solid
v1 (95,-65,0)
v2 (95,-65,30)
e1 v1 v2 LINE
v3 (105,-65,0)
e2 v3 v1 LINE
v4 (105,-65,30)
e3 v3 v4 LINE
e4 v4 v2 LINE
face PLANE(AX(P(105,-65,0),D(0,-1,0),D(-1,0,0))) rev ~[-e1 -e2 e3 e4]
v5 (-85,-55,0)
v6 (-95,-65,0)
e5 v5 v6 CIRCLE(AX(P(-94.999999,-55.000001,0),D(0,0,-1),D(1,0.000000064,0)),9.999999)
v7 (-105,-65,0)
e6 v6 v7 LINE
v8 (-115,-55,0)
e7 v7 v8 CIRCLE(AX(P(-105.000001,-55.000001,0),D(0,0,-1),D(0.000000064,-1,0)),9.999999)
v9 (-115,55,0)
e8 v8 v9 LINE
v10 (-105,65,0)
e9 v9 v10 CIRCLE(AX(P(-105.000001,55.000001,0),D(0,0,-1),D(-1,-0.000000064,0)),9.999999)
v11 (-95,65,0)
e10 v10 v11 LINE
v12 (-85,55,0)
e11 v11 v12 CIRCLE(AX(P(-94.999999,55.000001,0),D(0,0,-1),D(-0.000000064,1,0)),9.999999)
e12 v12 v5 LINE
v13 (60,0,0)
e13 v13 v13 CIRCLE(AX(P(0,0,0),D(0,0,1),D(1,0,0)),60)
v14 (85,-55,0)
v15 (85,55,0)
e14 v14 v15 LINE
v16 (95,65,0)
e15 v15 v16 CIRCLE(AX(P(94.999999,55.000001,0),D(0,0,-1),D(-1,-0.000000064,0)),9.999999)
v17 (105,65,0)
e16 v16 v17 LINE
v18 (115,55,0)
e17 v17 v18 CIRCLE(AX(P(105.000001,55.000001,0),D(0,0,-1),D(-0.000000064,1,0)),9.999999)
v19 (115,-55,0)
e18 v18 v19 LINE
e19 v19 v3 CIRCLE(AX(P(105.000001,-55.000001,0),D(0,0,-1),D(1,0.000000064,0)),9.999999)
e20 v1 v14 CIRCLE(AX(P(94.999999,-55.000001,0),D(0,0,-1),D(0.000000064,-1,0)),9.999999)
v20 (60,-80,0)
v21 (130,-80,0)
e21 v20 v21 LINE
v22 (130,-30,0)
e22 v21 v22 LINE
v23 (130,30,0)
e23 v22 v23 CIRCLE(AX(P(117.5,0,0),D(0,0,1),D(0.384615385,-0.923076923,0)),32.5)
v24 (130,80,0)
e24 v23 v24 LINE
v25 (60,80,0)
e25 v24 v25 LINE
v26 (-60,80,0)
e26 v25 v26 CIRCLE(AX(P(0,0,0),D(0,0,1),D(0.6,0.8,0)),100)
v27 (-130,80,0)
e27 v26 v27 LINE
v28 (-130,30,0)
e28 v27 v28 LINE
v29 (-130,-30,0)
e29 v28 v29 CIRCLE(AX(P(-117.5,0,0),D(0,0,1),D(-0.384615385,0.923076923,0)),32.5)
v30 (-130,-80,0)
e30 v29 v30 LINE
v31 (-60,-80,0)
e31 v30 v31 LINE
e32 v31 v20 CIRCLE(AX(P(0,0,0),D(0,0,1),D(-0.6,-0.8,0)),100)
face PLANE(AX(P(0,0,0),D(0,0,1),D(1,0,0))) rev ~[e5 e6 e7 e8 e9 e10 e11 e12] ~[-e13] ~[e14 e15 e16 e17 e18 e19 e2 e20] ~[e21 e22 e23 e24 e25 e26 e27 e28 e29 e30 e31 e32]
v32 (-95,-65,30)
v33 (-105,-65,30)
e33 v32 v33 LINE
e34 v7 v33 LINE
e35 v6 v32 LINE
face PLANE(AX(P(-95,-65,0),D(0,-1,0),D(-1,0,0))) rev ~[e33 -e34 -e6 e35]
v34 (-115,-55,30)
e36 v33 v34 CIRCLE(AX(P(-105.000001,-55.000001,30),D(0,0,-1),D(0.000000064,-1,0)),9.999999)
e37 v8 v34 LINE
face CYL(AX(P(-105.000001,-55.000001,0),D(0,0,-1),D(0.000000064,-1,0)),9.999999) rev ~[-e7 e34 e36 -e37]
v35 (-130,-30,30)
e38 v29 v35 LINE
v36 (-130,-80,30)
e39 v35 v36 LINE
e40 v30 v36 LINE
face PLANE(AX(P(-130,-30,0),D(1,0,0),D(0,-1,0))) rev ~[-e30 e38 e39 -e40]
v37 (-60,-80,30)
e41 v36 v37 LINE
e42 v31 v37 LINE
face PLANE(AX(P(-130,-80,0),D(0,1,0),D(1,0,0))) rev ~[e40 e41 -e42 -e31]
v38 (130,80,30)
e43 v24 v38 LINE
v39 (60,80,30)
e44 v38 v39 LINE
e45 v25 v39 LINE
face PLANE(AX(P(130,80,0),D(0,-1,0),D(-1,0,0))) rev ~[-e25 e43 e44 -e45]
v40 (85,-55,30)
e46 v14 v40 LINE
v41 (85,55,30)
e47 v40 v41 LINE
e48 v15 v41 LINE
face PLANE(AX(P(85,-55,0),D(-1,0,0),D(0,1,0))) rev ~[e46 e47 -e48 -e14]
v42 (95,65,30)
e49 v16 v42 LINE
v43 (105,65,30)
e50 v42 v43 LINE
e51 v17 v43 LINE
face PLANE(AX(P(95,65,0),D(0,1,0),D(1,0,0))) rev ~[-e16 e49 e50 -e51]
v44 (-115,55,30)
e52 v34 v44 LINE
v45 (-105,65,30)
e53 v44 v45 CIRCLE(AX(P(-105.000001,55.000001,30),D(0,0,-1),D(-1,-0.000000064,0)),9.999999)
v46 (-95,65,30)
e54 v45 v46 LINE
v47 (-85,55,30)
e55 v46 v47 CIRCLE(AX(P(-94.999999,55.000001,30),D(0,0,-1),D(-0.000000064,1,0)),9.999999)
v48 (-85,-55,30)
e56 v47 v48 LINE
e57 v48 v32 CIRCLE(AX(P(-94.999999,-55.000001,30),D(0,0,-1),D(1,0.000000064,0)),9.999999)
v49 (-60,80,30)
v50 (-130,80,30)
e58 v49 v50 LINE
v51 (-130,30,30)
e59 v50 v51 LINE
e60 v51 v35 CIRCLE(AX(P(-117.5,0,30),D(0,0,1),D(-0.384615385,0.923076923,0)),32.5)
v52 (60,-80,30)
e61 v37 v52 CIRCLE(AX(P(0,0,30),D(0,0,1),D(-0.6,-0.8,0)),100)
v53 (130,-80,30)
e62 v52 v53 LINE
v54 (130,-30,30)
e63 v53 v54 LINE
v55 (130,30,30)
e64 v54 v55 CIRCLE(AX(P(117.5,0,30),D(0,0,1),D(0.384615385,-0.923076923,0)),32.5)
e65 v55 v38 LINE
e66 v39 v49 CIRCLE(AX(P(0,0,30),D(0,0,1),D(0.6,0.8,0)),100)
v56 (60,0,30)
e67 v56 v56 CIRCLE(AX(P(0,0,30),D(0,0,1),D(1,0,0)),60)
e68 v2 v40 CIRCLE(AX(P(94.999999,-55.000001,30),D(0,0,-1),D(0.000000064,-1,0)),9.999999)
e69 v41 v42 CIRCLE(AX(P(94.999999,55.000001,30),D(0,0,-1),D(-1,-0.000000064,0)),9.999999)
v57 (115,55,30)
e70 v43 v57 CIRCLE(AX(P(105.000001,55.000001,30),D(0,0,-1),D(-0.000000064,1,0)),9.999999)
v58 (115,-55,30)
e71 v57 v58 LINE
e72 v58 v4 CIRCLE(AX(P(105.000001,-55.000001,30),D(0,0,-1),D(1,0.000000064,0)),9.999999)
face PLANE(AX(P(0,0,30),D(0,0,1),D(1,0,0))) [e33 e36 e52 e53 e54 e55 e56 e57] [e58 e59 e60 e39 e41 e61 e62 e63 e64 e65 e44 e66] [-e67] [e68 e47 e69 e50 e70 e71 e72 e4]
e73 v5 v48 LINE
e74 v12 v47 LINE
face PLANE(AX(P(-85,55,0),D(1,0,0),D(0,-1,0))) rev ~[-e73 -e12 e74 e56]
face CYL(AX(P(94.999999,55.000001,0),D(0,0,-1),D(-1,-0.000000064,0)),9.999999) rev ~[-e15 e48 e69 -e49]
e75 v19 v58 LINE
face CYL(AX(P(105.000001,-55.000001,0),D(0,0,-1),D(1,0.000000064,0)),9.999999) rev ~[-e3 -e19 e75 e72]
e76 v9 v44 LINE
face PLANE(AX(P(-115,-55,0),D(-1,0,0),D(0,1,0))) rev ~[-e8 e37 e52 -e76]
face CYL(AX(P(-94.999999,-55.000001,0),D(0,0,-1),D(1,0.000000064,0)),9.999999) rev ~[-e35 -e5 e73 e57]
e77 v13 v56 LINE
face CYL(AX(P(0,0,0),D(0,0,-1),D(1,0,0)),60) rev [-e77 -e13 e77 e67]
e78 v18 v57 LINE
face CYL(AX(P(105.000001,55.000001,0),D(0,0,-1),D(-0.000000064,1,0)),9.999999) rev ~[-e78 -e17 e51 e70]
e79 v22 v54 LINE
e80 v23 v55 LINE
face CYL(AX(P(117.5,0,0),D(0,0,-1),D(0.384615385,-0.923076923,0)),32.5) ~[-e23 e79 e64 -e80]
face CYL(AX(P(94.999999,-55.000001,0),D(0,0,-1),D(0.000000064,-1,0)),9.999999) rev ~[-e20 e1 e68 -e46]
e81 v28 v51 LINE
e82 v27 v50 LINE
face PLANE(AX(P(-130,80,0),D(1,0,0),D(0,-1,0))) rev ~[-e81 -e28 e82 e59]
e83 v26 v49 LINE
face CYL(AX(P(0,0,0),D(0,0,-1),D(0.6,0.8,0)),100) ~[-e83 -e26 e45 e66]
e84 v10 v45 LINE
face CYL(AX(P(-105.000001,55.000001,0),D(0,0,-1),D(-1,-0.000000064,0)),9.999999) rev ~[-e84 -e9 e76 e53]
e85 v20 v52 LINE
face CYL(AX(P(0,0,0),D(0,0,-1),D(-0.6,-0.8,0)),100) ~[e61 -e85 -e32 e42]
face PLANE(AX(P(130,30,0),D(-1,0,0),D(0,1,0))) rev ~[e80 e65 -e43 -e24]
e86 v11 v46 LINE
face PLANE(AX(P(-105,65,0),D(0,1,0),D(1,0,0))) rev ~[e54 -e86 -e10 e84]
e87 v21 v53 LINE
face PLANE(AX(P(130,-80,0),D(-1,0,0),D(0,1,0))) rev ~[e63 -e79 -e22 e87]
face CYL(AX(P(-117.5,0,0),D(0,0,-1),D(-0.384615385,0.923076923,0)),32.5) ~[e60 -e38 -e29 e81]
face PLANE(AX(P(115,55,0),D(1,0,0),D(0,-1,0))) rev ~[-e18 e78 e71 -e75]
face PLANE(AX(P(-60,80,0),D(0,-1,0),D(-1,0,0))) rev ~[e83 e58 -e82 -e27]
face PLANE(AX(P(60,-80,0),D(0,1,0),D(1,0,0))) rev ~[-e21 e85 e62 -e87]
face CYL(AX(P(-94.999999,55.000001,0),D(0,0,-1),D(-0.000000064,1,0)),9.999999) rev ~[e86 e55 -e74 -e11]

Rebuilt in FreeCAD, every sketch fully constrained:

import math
import FreeCAD as App
import Part
import Sketcher

V = App.Vector

doc = App.newDocument("Part")
body = doc.addObject("PartDesign::Body", "Body")

# Sketch on XY plane
sketch1 = body.newObject("Sketcher::SketchObject", "Sketch")
sketch1.AttachmentSupport = (doc.getObject("XY_Plane"), [""])
sketch1.MapMode = "FlatFace"
sketch1.addGeometry(Part.LineSegment(V(-130, -80, 0), V(-60, -80, 0)), False)
sketch1.addGeometry(Part.ArcOfCircle(Part.Circle(V(0, 0, 0), V(0, 0, 1), 100), math.radians(-127), math.radians(-53)), False)
sketch1.addGeometry(Part.LineSegment(V(60, -80, 0), V(130, -80, 0)), False)
sketch1.addGeometry(Part.LineSegment(V(130, -80, 0), V(130, -30, 0)), False)
sketch1.addGeometry(Part.ArcOfCircle(Part.Circle(V(118, 0, 0), V(0, 0, 1), 32), math.radians(-67), math.radians(67)), False)
sketch1.addGeometry(Part.LineSegment(V(130, 30, 0), V(130, 80, 0)), False)
sketch1.addGeometry(Part.LineSegment(V(130, 80, 0), V(60, 80, 0)), False)
sketch1.addGeometry(Part.ArcOfCircle(Part.Circle(V(0, 0, 0), V(0, 0, 1), 100), math.radians(53), math.radians(127)), False)
sketch1.addGeometry(Part.LineSegment(V(-60, 80, 0), V(-130, 80, 0)), False)
sketch1.addGeometry(Part.LineSegment(V(-130, 80, 0), V(-130, 30, 0)), False)
sketch1.addGeometry(Part.ArcOfCircle(Part.Circle(V(-118, 0, 0), V(0, 0, 1), 32), math.radians(113), math.radians(247)), False)
sketch1.addGeometry(Part.LineSegment(V(-130, -30, 0), V(-130, -80, 0)), False)
sketch1.addGeometry(Part.ArcOfCircle(Part.Circle(V(-105, -55, 0), V(0, 0, 1), 10), math.radians(180), math.radians(270)), False)
sketch1.addGeometry(Part.LineSegment(V(-115, -55, 0), V(-115, 55, 0)), False)
sketch1.addGeometry(Part.ArcOfCircle(Part.Circle(V(-105, 55, 0), V(0, 0, 1), 10), math.radians(90), math.radians(180)), False)
sketch1.addGeometry(Part.LineSegment(V(-105, 65, 0), V(-95, 65, 0)), False)
sketch1.addGeometry(Part.ArcOfCircle(Part.Circle(V(-95, 55, 0), V(0, 0, 1), 10), math.radians(0), math.radians(90)), False)
sketch1.addGeometry(Part.LineSegment(V(-85, 55, 0), V(-85, -55, 0)), False)
sketch1.addGeometry(Part.ArcOfCircle(Part.Circle(V(-95, -55, 0), V(0, 0, 1), 10), math.radians(-90), math.radians(0)), False)
sketch1.addGeometry(Part.LineSegment(V(-95, -65, 0), V(-105, -65, 0)), False)
sketch1.addGeometry(Part.Circle(V(0, 0, 0), V(0, 0, 1), 60), False)
sketch1.addGeometry(Part.LineSegment(V(85, -55, 0), V(85, 55, 0)), False)
sketch1.addGeometry(Part.ArcOfCircle(Part.Circle(V(95, 55, 0), V(0, 0, 1), 10), math.radians(90), math.radians(180)), False)
sketch1.addGeometry(Part.LineSegment(V(95, 65, 0), V(105, 65, 0)), False)
sketch1.addGeometry(Part.ArcOfCircle(Part.Circle(V(105, 55, 0), V(0, 0, 1), 10), math.radians(0), math.radians(90)), False)
sketch1.addGeometry(Part.LineSegment(V(115, 55, 0), V(115, -55, 0)), False)
sketch1.addGeometry(Part.ArcOfCircle(Part.Circle(V(105, -55, 0), V(0, 0, 1), 10), math.radians(-90), math.radians(0)), False)
sketch1.addGeometry(Part.LineSegment(V(105, -65, 0), V(95, -65, 0)), False)
sketch1.addGeometry(Part.ArcOfCircle(Part.Circle(V(95, -55, 0), V(0, 0, 1), 10), math.radians(180), math.radians(270)), False)
sketch1.addConstraint(Sketcher.Constraint("Coincident", 0, 2, 1, 1))
sketch1.addConstraint(Sketcher.Constraint("Coincident", 1, 2, 2, 1))
sketch1.addConstraint(Sketcher.Constraint("Coincident", 2, 2, 3, 1))
sketch1.addConstraint(Sketcher.Constraint("Coincident", 3, 2, 4, 1))
sketch1.addConstraint(Sketcher.Constraint("Coincident", 4, 2, 5, 1))
sketch1.addConstraint(Sketcher.Constraint("Coincident", 5, 2, 6, 1))
sketch1.addConstraint(Sketcher.Constraint("Coincident", 6, 2, 7, 1))
sketch1.addConstraint(Sketcher.Constraint("Coincident", 7, 2, 8, 1))
sketch1.addConstraint(Sketcher.Constraint("Coincident", 8, 2, 9, 1))
sketch1.addConstraint(Sketcher.Constraint("Coincident", 9, 2, 10, 1))
sketch1.addConstraint(Sketcher.Constraint("Coincident", 10, 2, 11, 1))
sketch1.addConstraint(Sketcher.Constraint("Coincident", 11, 2, 0, 1))
sketch1.addConstraint(Sketcher.Constraint("Tangent", 12, 1, 13, 1))
sketch1.addConstraint(Sketcher.Constraint("Tangent", 13, 2, 14, 2))
sketch1.addConstraint(Sketcher.Constraint("Tangent", 14, 1, 15, 1))
sketch1.addConstraint(Sketcher.Constraint("Tangent", 15, 2, 16, 2))
sketch1.addConstraint(Sketcher.Constraint("Tangent", 16, 1, 17, 1))
sketch1.addConstraint(Sketcher.Constraint("Tangent", 17, 2, 18, 2))
sketch1.addConstraint(Sketcher.Constraint("Tangent", 18, 1, 19, 1))
sketch1.addConstraint(Sketcher.Constraint("Tangent", 19, 2, 12, 2))
sketch1.addConstraint(Sketcher.Constraint("Tangent", 21, 2, 22, 2))
sketch1.addConstraint(Sketcher.Constraint("Tangent", 22, 1, 23, 1))
sketch1.addConstraint(Sketcher.Constraint("Tangent", 23, 2, 24, 2))
sketch1.addConstraint(Sketcher.Constraint("Tangent", 24, 1, 25, 1))
sketch1.addConstraint(Sketcher.Constraint("Tangent", 25, 2, 26, 2))
sketch1.addConstraint(Sketcher.Constraint("Tangent", 26, 1, 27, 1))
sketch1.addConstraint(Sketcher.Constraint("Tangent", 27, 2, 28, 2))
sketch1.addConstraint(Sketcher.Constraint("Tangent", 28, 1, 21, 1))
sketch1.addConstraint(Sketcher.Constraint("Horizontal", 0))
sketch1.addConstraint(Sketcher.Constraint("Horizontal", 2))
sketch1.addConstraint(Sketcher.Constraint("Vertical", 3))
sketch1.addConstraint(Sketcher.Constraint("Vertical", 5))
sketch1.addConstraint(Sketcher.Constraint("Horizontal", 6))
sketch1.addConstraint(Sketcher.Constraint("Horizontal", 8))
sketch1.addConstraint(Sketcher.Constraint("Vertical", 9))
sketch1.addConstraint(Sketcher.Constraint("Vertical", 11))
sketch1.addConstraint(Sketcher.Constraint("Vertical", 13))
sketch1.addConstraint(Sketcher.Constraint("Horizontal", 15))
sketch1.addConstraint(Sketcher.Constraint("Vertical", 17))
sketch1.addConstraint(Sketcher.Constraint("Horizontal", 19))
sketch1.addConstraint(Sketcher.Constraint("Vertical", 21))
sketch1.addConstraint(Sketcher.Constraint("Horizontal", 23))
sketch1.addConstraint(Sketcher.Constraint("Vertical", 25))
sketch1.addConstraint(Sketcher.Constraint("Horizontal", 27))
sketch1.addConstraint(Sketcher.Constraint("Coincident", 1, 3, -1, 1))
sketch1.addConstraint(Sketcher.Constraint("Coincident", 7, 3, -1, 1))
sketch1.addConstraint(Sketcher.Constraint("Coincident", 20, 3, -1, 1))
sketch1.addConstraint(Sketcher.Constraint("Equal", 1, 7))
sketch1.addConstraint(Sketcher.Constraint("Equal", 4, 10))
sketch1.addConstraint(Sketcher.Constraint("Equal", 12, 14))
sketch1.addConstraint(Sketcher.Constraint("Equal", 14, 16))
sketch1.addConstraint(Sketcher.Constraint("Equal", 16, 18))
sketch1.addConstraint(Sketcher.Constraint("Equal", 18, 22))
sketch1.addConstraint(Sketcher.Constraint("Equal", 22, 24))
sketch1.addConstraint(Sketcher.Constraint("Equal", 24, 26))
sketch1.addConstraint(Sketcher.Constraint("Equal", 26, 28))
sketch1.addConstraint(Sketcher.Constraint("Symmetric", 4, 3, 10, 3, -1, 1))
sketch1.addConstraint(Sketcher.Constraint("Symmetric", 18, 3, 22, 3, -1, 1))
sketch1.addConstraint(Sketcher.Constraint("Symmetric", 14, 3, 26, 3, -1, 1))
sketch1.addConstraint(Sketcher.Constraint("Symmetric", 2, 2, 8, 2, -1, 1))
sketch1.addConstraint(Sketcher.Constraint("Symmetric", 5, 2, 11, 2, -1, 1))
sketch1.addConstraint(Sketcher.Constraint("Symmetric", 5, 2, 8, 2, -2))
sketch1.addConstraint(Sketcher.Constraint("PointOnObject", 4, 3, -1))
sketch1.addConstraint(Sketcher.Constraint("Horizontal", 16, 3, 22, 3))
sketch1.addConstraint(Sketcher.Constraint("Diameter", 20, 120.0))
sketch1.addConstraint(Sketcher.Constraint("Radius", 1, 100.0))
sketch1.addConstraint(Sketcher.Constraint("Radius", 12, 9.999999))
sketch1.addConstraint(Sketcher.Constraint("Radius", 4, 32.5))
sketch1.addConstraint(Sketcher.Constraint("DistanceX", 0, 1, 0, 2, 70.0))
sketch1.addConstraint(Sketcher.Constraint("DistanceX", 15, 1, 15, 2, 10.0))
sketch1.addConstraint(Sketcher.Constraint("DistanceY", 3, 1, 3, 2, 50.0))
sketch1.addConstraint(Sketcher.Constraint("DistanceY", 13, 1, 13, 2, 110.0))
sketch1.addConstraint(Sketcher.Constraint("DistanceX", 12, 3, -1, 1, 105.000001))
sketch1.addConstraint(Sketcher.Constraint("DistanceX", 0, 2, -1, 1, 60.0))
pad1 = body.newObject("PartDesign::Pad", "Pad")
pad1.Profile = sketch1
pad1.Length = 30

doc.recompute()
